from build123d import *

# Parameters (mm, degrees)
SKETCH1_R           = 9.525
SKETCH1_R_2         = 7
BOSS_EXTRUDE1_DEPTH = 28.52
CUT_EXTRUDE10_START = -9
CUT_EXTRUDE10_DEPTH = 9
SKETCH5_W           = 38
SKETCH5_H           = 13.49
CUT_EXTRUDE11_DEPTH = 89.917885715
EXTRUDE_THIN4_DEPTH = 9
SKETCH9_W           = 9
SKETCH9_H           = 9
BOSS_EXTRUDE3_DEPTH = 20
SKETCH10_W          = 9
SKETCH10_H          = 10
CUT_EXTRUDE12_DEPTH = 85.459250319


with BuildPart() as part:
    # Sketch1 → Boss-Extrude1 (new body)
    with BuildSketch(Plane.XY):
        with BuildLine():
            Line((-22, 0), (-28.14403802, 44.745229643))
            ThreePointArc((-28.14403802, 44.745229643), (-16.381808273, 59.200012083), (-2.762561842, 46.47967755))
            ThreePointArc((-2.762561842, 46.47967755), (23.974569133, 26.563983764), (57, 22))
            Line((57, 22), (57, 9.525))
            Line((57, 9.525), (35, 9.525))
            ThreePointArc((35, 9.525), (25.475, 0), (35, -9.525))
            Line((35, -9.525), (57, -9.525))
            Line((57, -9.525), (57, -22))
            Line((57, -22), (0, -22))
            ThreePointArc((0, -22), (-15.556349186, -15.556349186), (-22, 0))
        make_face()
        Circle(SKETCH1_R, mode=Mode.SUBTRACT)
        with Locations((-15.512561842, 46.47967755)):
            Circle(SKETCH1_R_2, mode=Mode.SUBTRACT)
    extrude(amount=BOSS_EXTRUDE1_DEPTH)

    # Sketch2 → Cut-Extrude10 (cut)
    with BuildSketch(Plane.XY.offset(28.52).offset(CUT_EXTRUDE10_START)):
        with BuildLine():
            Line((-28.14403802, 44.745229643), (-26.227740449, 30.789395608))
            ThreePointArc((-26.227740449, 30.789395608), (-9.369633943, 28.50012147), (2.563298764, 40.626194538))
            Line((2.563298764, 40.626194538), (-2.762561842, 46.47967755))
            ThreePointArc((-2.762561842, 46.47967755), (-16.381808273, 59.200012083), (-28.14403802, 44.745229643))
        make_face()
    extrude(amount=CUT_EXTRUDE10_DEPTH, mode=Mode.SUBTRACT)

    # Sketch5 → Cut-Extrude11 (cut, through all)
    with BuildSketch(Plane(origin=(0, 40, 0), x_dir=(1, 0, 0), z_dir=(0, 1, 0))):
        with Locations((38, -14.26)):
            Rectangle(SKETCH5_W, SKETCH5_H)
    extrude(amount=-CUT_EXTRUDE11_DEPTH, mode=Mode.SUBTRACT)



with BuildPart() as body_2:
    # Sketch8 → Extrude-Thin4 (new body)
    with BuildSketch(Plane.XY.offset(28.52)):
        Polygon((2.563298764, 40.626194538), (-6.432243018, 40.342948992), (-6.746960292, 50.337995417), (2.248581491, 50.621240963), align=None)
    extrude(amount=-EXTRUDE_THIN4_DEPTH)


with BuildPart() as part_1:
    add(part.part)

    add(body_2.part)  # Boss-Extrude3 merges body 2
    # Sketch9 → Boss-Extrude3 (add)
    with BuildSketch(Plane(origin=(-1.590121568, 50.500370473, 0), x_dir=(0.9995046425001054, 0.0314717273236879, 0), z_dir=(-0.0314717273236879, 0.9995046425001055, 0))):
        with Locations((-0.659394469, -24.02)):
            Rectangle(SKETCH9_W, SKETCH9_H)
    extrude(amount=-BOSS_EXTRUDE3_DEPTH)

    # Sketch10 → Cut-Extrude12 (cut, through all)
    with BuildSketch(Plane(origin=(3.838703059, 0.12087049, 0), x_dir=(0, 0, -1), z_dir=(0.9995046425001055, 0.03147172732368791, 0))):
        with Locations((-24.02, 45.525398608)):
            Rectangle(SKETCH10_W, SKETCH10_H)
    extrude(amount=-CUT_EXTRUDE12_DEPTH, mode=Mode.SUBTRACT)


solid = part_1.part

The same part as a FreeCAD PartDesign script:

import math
import FreeCAD as App
import Part
import Sketcher


def add_polygon(sketch, points):
    """Adds a closed chain of lines whose ends are joined by coincident constraints."""
    first, n = sketch.GeometryCount, len(points)
    for a, b in zip(points, points[1:] + points[:1]):
        sketch.addGeometry(Part.LineSegment(App.Vector(*a, 0), App.Vector(*b, 0)), False)
    for i in range(n):
        sketch.addConstraint(Sketcher.Constraint("Coincident", first + i, 2, first + (i + 1) % n, 1))

doc = App.newDocument("Part")
params = doc.addObject("Spreadsheet::Sheet", "Params")
for row, (alias, value) in enumerate([
    ("sketch1_diameter", "14 mm"),
    ("sketch1_radius", "22 mm"),
    ("sketch1_radius2", "67 mm"),
    ("sketch1_diameter2", "19.05 mm"),
    ("sketch1_width", "57 mm"),
    ("pad1_length", "28.52 mm"),
    ("sketch2_radius", "19 mm"),
    ("sketch2_radius2", "12.75 mm"),
    ("pocket1_length", "9 mm"),
    ("sketch3_width", "38 mm"),
    ("sketch3_height", "13.49 mm"),
    ("sketch4_length", "9 mm"),
    ("sketch4_length2", "10 mm"),
    ("pad2_length", "9 mm"),
    ("sketch5_width", "9 mm"),
    ("pad3_length", "20 mm"),
    ("sketch6_width", "9 mm"),
    ("sketch6_height", "10 mm"),
], start=1):
    params.set(f"A{row}", alias)
    params.set(f"B{row}", "=" + value)
    params.setAlias(f"B{row}", alias)

body = doc.addObject("PartDesign::Body", "Body")

sketch1 = body.newObject("Sketcher::SketchObject", "Sketch")
sketch1.AttachmentSupport = (doc.getObject("XY_Plane"), [""])
sketch1.MapMode = "FlatFace"
sketch1.addGeometry([
    Part.LineSegment(App.Vector(-28, 45, 0), App.Vector(-22, 0, 0)),
    Part.ArcOfCircle(Part.Circle(App.Vector(0, 0, 0), App.Vector(0, 0, 1), 22), math.radians(180), math.radians(270)),
    Part.LineSegment(App.Vector(0, -22, 0), App.Vector(57, -22, 0)),
    Part.LineSegment(App.Vector(57, -22, 0), App.Vector(57, -10, 0)),
    Part.LineSegment(App.Vector(57, -10, 0), App.Vector(35, -10, 0)),
    Part.ArcOfCircle(Part.Circle(App.Vector(35, 0, 0), App.Vector(0, 0, 1), 10), math.radians(90), math.radians(270)),
    Part.LineSegment(App.Vector(35, 10, 0), App.Vector(57, 10, 0)),
    Part.LineSegment(App.Vector(57, 10, 0), App.Vector(57, 22, 0)),
    Part.ArcOfCircle(Part.Circle(App.Vector(49, 89, 0), App.Vector(0, 0, 1), 67), math.radians(-141), math.radians(-83)),
    Part.ArcOfCircle(Part.Circle(App.Vector(-16, 46, 0), App.Vector(0, 0, 1), 13), math.radians(0), math.radians(188)),
    Part.Circle(App.Vector(0, 0, 0), App.Vector(0, 0, 1), 10),
    Part.Circle(App.Vector(-16, 46, 0), App.Vector(0, 0, 1), 7),
], False)
sketch1.addConstraint([
    Sketcher.Constraint("Coincident", 0, 2, 1, 1),
    Sketcher.Constraint("Tangent", 1, 2, 2, 1),
    Sketcher.Constraint("Coincident", 2, 2, 3, 1),
    Sketcher.Constraint("Coincident", 3, 2, 4, 1),
    Sketcher.Constraint("Tangent", 4, 2, 5, 2),
    Sketcher.Constraint("Tangent", 5, 1, 6, 1),
    Sketcher.Constraint("Coincident", 6, 2, 7, 1),
    Sketcher.Constraint("Coincident", 7, 2, 8, 2),
    Sketcher.Constraint("Coincident", 8, 1, 9, 1),
    Sketcher.Constraint("Tangent", 9, 2, 0, 1),
    Sketcher.Constraint("Horizontal", 2),
    Sketcher.Constraint("Vertical", 3),
    Sketcher.Constraint("Horizontal", 4),
    Sketcher.Constraint("Horizontal", 6),
    Sketcher.Constraint("Vertical", 7),
    Sketcher.Constraint("Coincident", 1, 3, -1, 1),
    Sketcher.Constraint("Coincident", 10, 3, -1, 1),
    Sketcher.Constraint("Coincident", 11, 3, 9, 3),
    Sketcher.Constraint("Equal", 5, 10),
    Sketcher.Constraint("Symmetric", 3, 2, 6, 2, -1),
    Sketcher.Constraint("PointOnObject", 0, 2, -1),
    Sketcher.Constraint("Horizontal", 11, 3, 8, 1),
    Sketcher.Constraint("Equal", 3, 7),
    Sketcher.Constraint("Diameter", 11, 14.0),
    Sketcher.Constraint("Radius", 1, 22.0),
    Sketcher.Constraint("Radius", 8, 67.0),
    Sketcher.Constraint("Diameter", 10, 19.05),
    Sketcher.Constraint("DistanceX", 2, 1, 2, 2, 57.0),
    Sketcher.Constraint("DistanceX", 4, 2, 4, 1, 22.0),
    Sketcher.Constraint("Radius", 9, 12.75),
    Sketcher.Constraint("DistanceX", 9, 3, -1, 1, 15.512562),
    Sketcher.Constraint("DistanceY", -1, 1, 9, 2, 44.74523),
])
sketch1.setExpression("Constraints[23]", "Params.sketch1_diameter")
sketch1.setExpression("Constraints[24]", "Params.sketch1_radius")
sketch1.setExpression("Constraints[25]", "Params.sketch1_radius2")
sketch1.setExpression("Constraints[26]", "Params.sketch1_diameter2")
sketch1.setExpression("Constraints[27]", "Params.sketch1_width")
pad1 = body.newObject("PartDesign::Pad", "Pad")
pad1.Profile = sketch1
pad1.setExpression("Length", "Params.pad1_length")

sketch2 = body.newObject("Sketcher::SketchObject", "Sketch001")
sketch2.AttachmentSupport = (doc.getObject("XY_Plane"), [""])
sketch2.MapMode = "FlatFace"
sketch2.AttachmentOffset = App.Placement(App.Vector(0, 0, 19.52), App.Rotation())
sketch2.addGeometry([
    Part.LineSegment(App.Vector(-28, 45, 0), App.Vector(-26, 31, 0)),
    Part.ArcOfCircle(Part.Circle(App.Vector(-16, 46, 0), App.Vector(0, 0, 1), 19), math.radians(-124), math.radians(-18)),
    Part.LineSegment(App.Vector(3, 41, 0), App.Vector(-3, 46, 0)),
    Part.ArcOfCircle(Part.Circle(App.Vector(-16, 46, 0), App.Vector(0, 0, 1), 13), math.radians(0), math.radians(188)),
], False)
sketch2.addConstraint([
    Sketcher.Constraint("Coincident", 0, 2, 1, 1),
    Sketcher.Constraint("Coincident", 1, 2, 2, 1),
    Sketcher.Constraint("Coincident", 2, 2, 3, 1),
    Sketcher.Constraint("Tangent", 3, 2, 0, 1),
    Sketcher.Constraint("Coincident", 3, 3, 1, 3),
    Sketcher.Constraint("Horizontal", 3, 3, 2, 2),
    Sketcher.Constraint("Radius", 1, 19.0),
    Sketcher.Constraint("Radius", 3, 12.75),
    Sketcher.Constraint("DistanceX", -1, 1, 1, 2, 2.563299),
    Sketcher.Constraint("DistanceY", 0, 2, 1, 2, 9.836799),
    Sketcher.Constraint("Distance", 2, 7.913789),
    Sketcher.Constraint("DistanceY", -1, 1, 3, 2, 44.74523),
])
sketch2.setExpression("Constraints[6]", "Params.sketch2_radius")
sketch2.setExpression("Constraints[7]", "Params.sketch2_radius2")
pocket1 = body.newObject("PartDesign::Pocket", "Pocket")
pocket1.Profile = sketch2
pocket1.setExpression("Length", "Params.pocket1_length")
pocket1.Reversed = True

sketch3 = body.newObject("Sketcher::SketchObject", "Sketch002")
sketch3.AttachmentSupport = (doc.getObject("XZ_Plane"), [""])
sketch3.MapMode = "FlatFace"
sketch3.AttachmentOffset = App.Placement(App.Vector(0, 0, -40), App.Rotation())
add_polygon(sketch3, [(19, 8), (19, 21), (57, 21), (57, 8)])
sketch3.addConstraint([
    Sketcher.Constraint("Vertical", 0),
    Sketcher.Constraint("Horizontal", 1),
    Sketcher.Constraint("Vertical", 2),
    Sketcher.Constraint("Horizontal", 3),
    Sketcher.Constraint("DistanceX", 1, 1, 1, 2, 38.0),
    Sketcher.Constraint("DistanceX", -1, 1, 0, 2, 19.0),
    Sketcher.Constraint("DistanceY", 0, 1, 0, 2, 13.49),
    Sketcher.Constraint("DistanceY", -1, 1, 0, 2, 21.005),
])
sketch3.setExpression("Constraints[8]", "Params.sketch3_width")
sketch3.setExpression("Constraints[10]", "Params.sketch3_height")
pocket2 = body.newObject("PartDesign::Pocket", "Pocket001")
pocket2.Profile = sketch3
pocket2.Type = "ThroughAll"
pocket2.Reversed = True
body2 = doc.addObject("PartDesign::Body", "Body001")

sketch4 = body2.newObject("Sketcher::SketchObject", "Sketch003")
sketch4.AttachmentSupport = (doc.getObject("XY_Plane001"), [""])
sketch4.MapMode = "FlatFace"
sketch4.AttachmentOffset = App.Placement(App.Vector(0, 0, 28.52), App.Rotation())
add_polygon(sketch4, [(-6, 40), (3, 41), (2, 51), (-7, 50)])
sketch4.addConstraint([
    Sketcher.Constraint("Perpendicular", 0, 1),
    Sketcher.Constraint("Perpendicular", 1, 2),
    Sketcher.Constraint("Perpendicular", 2, 3),
    Sketcher.Constraint("Distance", 0, 9.0),
    Sketcher.Constraint("Distance", 1, 10.0),
    Sketcher.Constraint("DistanceX", -1, 1, 0, 2, 2.563299),
    Sketcher.Constraint("DistanceY", 0, 2, 2, 2, 9.711801),
    Sketcher.Constraint("DistanceY", -1, 1, 1, 2, 50.621241),
])
sketch4.setExpression("Constraints[7]", "Params.sketch4_length")
sketch4.setExpression("Constraints[8]", "Params.sketch4_length2")
pad2 = body2.newObject("PartDesign::Pad", "Pad001")
pad2.Profile = sketch4
pad2.setExpression("Length", "Params.pad2_length")
pad2.Reversed = True
doc.recompute()

boolean = body.newObject("PartDesign::Boolean", "Boolean")
boolean.Type = "Fuse"
boolean.addObjects([body2])

sketch5 = body.newObject("Sketcher::SketchObject", "Sketch004")
sketch5.Placement = App.Placement(App.Vector(-1.590122, 50.50037, 0), App.Rotation(App.Vector(0.999504643, 0.031471727, 0), App.Vector(0, 0, -1.000000001), App.Vector(-0.031471727, 0.999504643, 0), "ZXY"))
add_polygon(sketch5, [(-5, -20), (-5, -29), (4, -29), (4, -20)])
sketch5.addConstraint([
    Sketcher.Constraint("Vertical", 0),
    Sketcher.Constraint("Horizontal", 1),
    Sketcher.Constraint("Vertical", 2),
    Sketcher.Constraint("Horizontal", 3),
    Sketcher.Constraint("Equal", 3, 0),
    Sketcher.Constraint("DistanceX", 1, 1, 1, 2, 9.0),
    Sketcher.Constraint("DistanceY", 0, 2, -1, 1, 28.52),
    Sketcher.Constraint("DistanceX", 0, 2, -1, 1, 5.159394),
])
sketch5.setExpression("Constraints[9]", "Params.sketch5_width")
pad3 = body.newObject("PartDesign::Pad", "Pad002")
pad3.Profile = sketch5
pad3.setExpression("Length", "Params.pad3_length")
pad3.Reversed = True

sketch6 = body.newObject("Sketcher::SketchObject", "Sketch005")
sketch6.Placement = App.Placement(App.Vector(3.838703, 0.12087, 0), App.Rotation(App.Vector(0, 0, -1), App.Vector(-0.031471727, 0.999504643, 0), App.Vector(0.999504643, 0.031471727, 0), "ZXY"))
add_polygon(sketch6, [(-29, 51), (-29, 41), (-20, 41), (-20, 51)])
sketch6.addConstraint([
    Sketcher.Constraint("Vertical", 0),
    Sketcher.Constraint("Horizontal", 1),
    Sketcher.Constraint("Vertical", 2),
    Sketcher.Constraint("Horizontal", 3),
    Sketcher.Constraint("DistanceX", 1, 1, 1, 2, 9.0),
    Sketcher.Constraint("DistanceY", 0, 2, 0, 1, 10.0),
    Sketcher.Constraint("DistanceX", 0, 2, -1, 1, 28.52),
    Sketcher.Constraint("DistanceY", -1, 1, 0, 2, 40.525399),
])
sketch6.setExpression("Constraints[8]", "Params.sketch6_width")
sketch6.setExpression("Constraints[9]", "Params.sketch6_height")
pocket3 = body.newObject("PartDesign::Pocket", "Pocket002")
pocket3.Profile = sketch6
pocket3.Type = "ThroughAll"

doc.recompute()
